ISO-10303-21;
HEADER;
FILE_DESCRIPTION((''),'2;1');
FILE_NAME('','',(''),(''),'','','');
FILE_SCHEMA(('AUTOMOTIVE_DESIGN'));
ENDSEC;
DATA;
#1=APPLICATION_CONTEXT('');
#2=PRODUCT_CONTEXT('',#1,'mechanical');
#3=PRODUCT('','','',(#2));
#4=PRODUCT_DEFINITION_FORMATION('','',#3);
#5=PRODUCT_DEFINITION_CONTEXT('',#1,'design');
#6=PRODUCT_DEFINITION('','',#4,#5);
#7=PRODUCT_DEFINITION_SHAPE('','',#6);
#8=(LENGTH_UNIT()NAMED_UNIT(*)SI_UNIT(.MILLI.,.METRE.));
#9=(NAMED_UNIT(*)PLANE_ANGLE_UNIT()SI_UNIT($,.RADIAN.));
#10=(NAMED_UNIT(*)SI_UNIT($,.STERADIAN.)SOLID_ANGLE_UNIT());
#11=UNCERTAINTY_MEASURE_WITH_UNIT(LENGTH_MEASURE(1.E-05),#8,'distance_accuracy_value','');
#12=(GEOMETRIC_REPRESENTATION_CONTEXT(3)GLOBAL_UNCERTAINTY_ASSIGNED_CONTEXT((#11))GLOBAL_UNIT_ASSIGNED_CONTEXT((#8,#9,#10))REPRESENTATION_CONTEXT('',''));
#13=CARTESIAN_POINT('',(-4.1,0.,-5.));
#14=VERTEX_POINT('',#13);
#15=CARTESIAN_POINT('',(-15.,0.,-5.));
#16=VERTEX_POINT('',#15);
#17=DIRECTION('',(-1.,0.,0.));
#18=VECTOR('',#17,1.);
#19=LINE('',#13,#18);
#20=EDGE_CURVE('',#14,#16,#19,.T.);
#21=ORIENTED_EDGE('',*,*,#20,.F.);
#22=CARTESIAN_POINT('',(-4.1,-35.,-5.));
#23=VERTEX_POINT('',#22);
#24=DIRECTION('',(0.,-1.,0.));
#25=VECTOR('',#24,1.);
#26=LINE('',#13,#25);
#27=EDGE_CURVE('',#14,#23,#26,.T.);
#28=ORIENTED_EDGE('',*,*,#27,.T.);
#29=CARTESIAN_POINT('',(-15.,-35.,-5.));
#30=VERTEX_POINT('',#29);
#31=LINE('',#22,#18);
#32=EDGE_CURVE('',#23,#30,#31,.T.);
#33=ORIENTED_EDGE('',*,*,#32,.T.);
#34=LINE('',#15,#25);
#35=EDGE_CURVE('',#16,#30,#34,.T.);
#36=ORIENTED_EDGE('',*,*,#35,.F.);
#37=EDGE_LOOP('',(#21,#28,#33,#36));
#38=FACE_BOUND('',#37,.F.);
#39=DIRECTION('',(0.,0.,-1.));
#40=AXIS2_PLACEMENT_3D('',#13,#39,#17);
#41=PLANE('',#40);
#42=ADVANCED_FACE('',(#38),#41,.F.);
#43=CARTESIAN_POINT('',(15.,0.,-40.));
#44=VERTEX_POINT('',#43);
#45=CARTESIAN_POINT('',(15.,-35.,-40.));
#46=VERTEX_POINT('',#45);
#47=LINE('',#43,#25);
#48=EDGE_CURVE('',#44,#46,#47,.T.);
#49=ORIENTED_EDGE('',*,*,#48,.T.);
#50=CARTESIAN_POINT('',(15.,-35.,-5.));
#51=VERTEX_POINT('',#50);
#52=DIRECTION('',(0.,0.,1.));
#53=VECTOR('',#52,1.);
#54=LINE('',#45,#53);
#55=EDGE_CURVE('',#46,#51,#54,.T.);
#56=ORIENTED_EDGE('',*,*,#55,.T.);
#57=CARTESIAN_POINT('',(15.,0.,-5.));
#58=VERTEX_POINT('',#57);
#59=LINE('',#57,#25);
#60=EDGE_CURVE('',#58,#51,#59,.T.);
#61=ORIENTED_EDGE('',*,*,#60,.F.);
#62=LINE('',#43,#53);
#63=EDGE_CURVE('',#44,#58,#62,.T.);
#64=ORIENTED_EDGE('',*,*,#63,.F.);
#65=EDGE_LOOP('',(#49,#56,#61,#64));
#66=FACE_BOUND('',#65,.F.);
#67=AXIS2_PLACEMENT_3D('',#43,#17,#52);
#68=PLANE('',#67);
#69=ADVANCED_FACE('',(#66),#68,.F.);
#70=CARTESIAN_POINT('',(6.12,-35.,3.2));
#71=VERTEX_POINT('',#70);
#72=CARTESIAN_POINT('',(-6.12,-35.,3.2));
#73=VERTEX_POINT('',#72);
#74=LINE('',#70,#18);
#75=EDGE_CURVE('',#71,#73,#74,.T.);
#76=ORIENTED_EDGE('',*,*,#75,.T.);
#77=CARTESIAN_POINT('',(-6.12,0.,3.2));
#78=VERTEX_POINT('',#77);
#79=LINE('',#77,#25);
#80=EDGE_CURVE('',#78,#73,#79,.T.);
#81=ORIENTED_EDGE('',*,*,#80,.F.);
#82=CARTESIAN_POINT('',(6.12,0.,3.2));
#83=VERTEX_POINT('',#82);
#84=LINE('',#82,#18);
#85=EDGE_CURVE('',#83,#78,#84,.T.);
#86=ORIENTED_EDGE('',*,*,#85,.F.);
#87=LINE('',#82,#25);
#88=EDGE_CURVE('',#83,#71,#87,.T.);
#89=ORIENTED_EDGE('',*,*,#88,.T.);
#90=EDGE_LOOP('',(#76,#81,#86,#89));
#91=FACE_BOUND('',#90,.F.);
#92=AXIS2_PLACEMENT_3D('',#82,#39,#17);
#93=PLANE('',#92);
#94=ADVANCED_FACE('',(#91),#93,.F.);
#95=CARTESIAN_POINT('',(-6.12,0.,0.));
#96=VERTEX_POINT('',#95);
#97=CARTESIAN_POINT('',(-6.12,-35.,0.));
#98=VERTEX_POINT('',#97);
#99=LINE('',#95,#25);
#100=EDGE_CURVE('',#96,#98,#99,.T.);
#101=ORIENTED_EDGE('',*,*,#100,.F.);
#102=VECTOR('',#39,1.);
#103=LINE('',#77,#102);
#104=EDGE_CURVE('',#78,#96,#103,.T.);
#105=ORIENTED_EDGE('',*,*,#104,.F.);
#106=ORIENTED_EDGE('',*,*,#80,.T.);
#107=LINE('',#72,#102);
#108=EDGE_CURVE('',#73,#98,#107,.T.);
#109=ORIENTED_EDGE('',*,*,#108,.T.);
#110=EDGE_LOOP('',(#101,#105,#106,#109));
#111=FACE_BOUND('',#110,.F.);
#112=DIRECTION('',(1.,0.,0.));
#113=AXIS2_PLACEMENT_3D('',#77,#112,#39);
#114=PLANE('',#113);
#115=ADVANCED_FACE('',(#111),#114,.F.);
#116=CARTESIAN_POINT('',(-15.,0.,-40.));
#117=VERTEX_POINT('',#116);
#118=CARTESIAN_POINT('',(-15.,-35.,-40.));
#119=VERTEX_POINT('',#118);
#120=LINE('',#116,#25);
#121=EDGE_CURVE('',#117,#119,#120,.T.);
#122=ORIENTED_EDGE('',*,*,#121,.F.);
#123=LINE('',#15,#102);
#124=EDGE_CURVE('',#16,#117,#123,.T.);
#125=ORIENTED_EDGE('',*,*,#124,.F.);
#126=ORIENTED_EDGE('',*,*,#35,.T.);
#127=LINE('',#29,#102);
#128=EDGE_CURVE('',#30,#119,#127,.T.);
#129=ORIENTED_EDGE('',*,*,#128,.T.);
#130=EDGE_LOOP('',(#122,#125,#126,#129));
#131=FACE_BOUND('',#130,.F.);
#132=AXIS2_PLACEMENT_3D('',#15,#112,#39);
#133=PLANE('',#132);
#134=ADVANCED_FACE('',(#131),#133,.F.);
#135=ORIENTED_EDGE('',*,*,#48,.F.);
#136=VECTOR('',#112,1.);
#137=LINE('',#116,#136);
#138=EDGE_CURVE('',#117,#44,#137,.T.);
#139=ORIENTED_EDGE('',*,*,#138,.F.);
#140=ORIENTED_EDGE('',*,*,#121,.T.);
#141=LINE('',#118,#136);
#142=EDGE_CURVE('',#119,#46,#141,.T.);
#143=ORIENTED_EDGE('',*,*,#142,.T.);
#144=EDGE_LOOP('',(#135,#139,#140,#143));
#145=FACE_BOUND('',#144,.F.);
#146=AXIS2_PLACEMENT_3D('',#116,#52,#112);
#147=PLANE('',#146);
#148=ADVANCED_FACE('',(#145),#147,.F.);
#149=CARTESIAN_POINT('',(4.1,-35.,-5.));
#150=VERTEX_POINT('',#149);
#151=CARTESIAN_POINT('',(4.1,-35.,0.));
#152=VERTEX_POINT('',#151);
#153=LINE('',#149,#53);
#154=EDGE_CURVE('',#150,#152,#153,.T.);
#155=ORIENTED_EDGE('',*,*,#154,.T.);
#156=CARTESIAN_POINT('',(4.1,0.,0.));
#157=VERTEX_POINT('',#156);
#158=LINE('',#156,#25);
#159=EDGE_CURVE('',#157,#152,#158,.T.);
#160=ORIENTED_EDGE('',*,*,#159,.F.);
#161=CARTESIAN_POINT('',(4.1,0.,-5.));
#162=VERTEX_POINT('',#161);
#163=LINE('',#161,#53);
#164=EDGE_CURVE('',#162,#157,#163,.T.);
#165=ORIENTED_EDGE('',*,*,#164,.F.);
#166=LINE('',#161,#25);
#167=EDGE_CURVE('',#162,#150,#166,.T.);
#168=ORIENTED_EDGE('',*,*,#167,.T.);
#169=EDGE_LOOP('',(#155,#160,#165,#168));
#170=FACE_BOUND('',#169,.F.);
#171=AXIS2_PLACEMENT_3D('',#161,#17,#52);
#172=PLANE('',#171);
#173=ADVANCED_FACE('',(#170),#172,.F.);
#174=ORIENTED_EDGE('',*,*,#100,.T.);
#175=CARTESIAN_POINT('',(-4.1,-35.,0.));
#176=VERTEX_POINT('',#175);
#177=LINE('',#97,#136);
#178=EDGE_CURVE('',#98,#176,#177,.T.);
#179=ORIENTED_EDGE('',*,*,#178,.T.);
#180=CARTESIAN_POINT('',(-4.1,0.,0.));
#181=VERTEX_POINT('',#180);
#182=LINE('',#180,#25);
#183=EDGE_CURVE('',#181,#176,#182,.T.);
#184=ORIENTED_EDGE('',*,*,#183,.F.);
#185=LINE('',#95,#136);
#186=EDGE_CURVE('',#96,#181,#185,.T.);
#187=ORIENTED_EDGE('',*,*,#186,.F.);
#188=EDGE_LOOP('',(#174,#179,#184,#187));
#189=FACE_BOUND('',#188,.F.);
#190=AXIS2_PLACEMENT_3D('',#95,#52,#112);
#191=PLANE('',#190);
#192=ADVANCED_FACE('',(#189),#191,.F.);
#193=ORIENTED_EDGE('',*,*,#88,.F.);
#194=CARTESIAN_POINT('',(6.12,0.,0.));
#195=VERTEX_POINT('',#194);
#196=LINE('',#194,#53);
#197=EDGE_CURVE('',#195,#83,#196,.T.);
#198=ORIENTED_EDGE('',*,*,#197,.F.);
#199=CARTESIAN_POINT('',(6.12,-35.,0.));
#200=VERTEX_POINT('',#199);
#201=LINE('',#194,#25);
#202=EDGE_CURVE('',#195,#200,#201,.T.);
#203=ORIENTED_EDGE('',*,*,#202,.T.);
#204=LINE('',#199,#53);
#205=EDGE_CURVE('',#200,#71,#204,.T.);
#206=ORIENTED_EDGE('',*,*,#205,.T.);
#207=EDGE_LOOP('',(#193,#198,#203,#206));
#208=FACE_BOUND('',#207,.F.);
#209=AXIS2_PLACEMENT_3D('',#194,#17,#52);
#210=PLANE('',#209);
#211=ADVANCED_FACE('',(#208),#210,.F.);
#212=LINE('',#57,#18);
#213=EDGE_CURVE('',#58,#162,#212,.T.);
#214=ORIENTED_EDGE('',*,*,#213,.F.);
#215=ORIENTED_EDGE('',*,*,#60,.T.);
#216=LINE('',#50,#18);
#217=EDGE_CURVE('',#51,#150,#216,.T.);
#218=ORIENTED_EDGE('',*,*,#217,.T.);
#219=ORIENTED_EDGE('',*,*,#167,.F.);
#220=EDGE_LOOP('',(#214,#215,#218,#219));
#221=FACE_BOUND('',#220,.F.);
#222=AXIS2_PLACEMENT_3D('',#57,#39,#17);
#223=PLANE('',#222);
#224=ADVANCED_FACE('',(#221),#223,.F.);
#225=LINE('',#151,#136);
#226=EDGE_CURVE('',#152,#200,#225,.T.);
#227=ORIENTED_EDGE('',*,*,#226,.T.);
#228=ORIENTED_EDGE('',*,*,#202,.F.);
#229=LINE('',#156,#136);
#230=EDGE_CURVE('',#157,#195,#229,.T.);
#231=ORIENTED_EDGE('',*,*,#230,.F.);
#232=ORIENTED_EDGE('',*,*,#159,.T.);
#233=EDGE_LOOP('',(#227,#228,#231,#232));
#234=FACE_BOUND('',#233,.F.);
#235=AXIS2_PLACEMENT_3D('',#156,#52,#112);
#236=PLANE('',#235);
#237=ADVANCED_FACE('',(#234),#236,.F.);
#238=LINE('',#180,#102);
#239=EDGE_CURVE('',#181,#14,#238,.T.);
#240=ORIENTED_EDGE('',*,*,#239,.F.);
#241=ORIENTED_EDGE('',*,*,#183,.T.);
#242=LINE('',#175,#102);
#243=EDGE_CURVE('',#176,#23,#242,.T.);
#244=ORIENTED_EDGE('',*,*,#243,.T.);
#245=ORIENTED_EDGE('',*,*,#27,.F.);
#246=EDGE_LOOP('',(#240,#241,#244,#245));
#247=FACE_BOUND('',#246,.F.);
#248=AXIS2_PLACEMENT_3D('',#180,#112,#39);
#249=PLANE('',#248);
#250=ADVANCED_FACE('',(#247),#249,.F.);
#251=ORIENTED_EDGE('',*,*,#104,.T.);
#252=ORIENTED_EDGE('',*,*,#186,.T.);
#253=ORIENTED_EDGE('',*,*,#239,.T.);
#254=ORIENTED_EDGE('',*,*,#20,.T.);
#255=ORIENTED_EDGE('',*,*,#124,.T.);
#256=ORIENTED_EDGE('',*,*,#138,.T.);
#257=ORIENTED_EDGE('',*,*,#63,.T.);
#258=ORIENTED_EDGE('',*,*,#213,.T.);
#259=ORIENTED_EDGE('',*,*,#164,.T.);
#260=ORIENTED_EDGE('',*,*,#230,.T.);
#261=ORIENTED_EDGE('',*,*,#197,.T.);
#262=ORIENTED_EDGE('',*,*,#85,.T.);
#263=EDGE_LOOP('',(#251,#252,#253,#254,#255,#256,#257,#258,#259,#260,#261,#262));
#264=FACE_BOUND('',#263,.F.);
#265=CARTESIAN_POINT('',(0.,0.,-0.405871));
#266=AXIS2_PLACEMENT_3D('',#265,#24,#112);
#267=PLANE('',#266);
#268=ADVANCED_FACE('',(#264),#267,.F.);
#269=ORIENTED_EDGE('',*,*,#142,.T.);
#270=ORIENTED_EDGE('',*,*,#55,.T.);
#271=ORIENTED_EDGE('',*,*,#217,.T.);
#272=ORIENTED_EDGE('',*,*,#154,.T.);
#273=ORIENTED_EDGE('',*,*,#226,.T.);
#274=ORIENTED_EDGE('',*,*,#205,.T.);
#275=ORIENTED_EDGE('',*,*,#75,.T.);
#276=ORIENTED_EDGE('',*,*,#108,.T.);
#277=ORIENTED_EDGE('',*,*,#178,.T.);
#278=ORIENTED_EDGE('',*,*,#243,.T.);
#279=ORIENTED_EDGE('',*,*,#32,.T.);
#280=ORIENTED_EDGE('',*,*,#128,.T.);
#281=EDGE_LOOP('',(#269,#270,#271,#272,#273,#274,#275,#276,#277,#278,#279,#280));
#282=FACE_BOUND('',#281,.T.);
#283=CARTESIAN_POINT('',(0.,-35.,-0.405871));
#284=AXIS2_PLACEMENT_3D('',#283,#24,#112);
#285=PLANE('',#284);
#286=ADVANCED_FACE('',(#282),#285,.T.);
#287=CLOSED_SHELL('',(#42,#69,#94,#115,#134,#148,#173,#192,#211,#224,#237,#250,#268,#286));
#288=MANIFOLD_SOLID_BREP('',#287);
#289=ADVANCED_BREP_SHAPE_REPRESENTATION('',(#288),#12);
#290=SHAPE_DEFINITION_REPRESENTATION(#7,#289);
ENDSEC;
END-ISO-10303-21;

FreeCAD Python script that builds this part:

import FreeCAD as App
import Part
import Sketcher

V = App.Vector


def add_polygon(sketch, points):
    """Adds a closed chain of lines whose ends are joined by coincident constraints."""
    first, n = sketch.GeometryCount, len(points)
    for a, b in zip(points, points[1:] + points[:1]):
        sketch.addGeometry(Part.LineSegment(App.Vector(*a, 0), App.Vector(*b, 0)), False)
    for i in range(n):
        sketch.addConstraint(Sketcher.Constraint("Coincident", first + i, 2, first + (i + 1) % n, 1))

doc = App.newDocument("Part")
body = doc.addObject("PartDesign::Body", "Body")

# Sketch on XZ plane
sketch1 = doc.addObject("Sketcher::SketchObject", "Sketch")
body.addObject(sketch1)
sketch1.AttachmentSupport = (doc.XZ_Plane, [""])
sketch1.MapMode = "FlatFace"
add_polygon(sketch1, [(-6.1, 3.2), (-6.1, 0), (-4.1, 0), (-4.1, -5), (-15, -5), (-15, -40), (15, -40), (15, -5), (4.1, -5), (4.1, 0), (6.1, 0), (6.1, 3.2)])  # lines 0-11
sketch1.addConstraint(Sketcher.Constraint("Vertical", 0))
sketch1.addConstraint(Sketcher.Constraint("Horizontal", 1))
sketch1.addConstraint(Sketcher.Constraint("Vertical", 2))
sketch1.addConstraint(Sketcher.Constraint("Horizontal", 3))
sketch1.addConstraint(Sketcher.Constraint("Vertical", 4))
sketch1.addConstraint(Sketcher.Constraint("Horizontal", 5))
sketch1.addConstraint(Sketcher.Constraint("Vertical", 6))
sketch1.addConstraint(Sketcher.Constraint("Horizontal", 7))
sketch1.addConstraint(Sketcher.Constraint("Vertical", 8))
sketch1.addConstraint(Sketcher.Constraint("Horizontal", 9))
sketch1.addConstraint(Sketcher.Constraint("Vertical", 10))
sketch1.addConstraint(Sketcher.Constraint("Horizontal", 11))
sketch1.addConstraint(Sketcher.Constraint("Symmetric", 1, 2, 8, 2, -1, 1))
sketch1.addConstraint(Sketcher.Constraint("Symmetric", 3, 2, 6, 2, -2))
sketch1.addConstraint(Sketcher.Constraint("Symmetric", 0, 2, 9, 2, -2))
sketch1.addConstraint(Sketcher.Constraint("DistanceX", 5, 1, 5, 2, 30.0))
sketch1.addConstraint(Sketcher.Constraint("DistanceY", 2, 2, 2, 1, 5.0))
sketch1.addConstraint(Sketcher.Constraint("DistanceY", 4, 2, 4, 1, 35.0))
sketch1.addConstraint(Sketcher.Constraint("DistanceX", 3, 2, 3, 1, 10.9))
sketch1.addConstraint(Sketcher.Constraint("DistanceY", 0, 2, 0, 1, 3.2))
sketch1.addConstraint(Sketcher.Constraint("DistanceX", 1, 1, 1, 2, 2.02))
pad1 = doc.addObject("PartDesign::Pad", "Pad")
body.addObject(pad1)
pad1.Profile = sketch1
pad1.Length = 35

doc.recompute()
